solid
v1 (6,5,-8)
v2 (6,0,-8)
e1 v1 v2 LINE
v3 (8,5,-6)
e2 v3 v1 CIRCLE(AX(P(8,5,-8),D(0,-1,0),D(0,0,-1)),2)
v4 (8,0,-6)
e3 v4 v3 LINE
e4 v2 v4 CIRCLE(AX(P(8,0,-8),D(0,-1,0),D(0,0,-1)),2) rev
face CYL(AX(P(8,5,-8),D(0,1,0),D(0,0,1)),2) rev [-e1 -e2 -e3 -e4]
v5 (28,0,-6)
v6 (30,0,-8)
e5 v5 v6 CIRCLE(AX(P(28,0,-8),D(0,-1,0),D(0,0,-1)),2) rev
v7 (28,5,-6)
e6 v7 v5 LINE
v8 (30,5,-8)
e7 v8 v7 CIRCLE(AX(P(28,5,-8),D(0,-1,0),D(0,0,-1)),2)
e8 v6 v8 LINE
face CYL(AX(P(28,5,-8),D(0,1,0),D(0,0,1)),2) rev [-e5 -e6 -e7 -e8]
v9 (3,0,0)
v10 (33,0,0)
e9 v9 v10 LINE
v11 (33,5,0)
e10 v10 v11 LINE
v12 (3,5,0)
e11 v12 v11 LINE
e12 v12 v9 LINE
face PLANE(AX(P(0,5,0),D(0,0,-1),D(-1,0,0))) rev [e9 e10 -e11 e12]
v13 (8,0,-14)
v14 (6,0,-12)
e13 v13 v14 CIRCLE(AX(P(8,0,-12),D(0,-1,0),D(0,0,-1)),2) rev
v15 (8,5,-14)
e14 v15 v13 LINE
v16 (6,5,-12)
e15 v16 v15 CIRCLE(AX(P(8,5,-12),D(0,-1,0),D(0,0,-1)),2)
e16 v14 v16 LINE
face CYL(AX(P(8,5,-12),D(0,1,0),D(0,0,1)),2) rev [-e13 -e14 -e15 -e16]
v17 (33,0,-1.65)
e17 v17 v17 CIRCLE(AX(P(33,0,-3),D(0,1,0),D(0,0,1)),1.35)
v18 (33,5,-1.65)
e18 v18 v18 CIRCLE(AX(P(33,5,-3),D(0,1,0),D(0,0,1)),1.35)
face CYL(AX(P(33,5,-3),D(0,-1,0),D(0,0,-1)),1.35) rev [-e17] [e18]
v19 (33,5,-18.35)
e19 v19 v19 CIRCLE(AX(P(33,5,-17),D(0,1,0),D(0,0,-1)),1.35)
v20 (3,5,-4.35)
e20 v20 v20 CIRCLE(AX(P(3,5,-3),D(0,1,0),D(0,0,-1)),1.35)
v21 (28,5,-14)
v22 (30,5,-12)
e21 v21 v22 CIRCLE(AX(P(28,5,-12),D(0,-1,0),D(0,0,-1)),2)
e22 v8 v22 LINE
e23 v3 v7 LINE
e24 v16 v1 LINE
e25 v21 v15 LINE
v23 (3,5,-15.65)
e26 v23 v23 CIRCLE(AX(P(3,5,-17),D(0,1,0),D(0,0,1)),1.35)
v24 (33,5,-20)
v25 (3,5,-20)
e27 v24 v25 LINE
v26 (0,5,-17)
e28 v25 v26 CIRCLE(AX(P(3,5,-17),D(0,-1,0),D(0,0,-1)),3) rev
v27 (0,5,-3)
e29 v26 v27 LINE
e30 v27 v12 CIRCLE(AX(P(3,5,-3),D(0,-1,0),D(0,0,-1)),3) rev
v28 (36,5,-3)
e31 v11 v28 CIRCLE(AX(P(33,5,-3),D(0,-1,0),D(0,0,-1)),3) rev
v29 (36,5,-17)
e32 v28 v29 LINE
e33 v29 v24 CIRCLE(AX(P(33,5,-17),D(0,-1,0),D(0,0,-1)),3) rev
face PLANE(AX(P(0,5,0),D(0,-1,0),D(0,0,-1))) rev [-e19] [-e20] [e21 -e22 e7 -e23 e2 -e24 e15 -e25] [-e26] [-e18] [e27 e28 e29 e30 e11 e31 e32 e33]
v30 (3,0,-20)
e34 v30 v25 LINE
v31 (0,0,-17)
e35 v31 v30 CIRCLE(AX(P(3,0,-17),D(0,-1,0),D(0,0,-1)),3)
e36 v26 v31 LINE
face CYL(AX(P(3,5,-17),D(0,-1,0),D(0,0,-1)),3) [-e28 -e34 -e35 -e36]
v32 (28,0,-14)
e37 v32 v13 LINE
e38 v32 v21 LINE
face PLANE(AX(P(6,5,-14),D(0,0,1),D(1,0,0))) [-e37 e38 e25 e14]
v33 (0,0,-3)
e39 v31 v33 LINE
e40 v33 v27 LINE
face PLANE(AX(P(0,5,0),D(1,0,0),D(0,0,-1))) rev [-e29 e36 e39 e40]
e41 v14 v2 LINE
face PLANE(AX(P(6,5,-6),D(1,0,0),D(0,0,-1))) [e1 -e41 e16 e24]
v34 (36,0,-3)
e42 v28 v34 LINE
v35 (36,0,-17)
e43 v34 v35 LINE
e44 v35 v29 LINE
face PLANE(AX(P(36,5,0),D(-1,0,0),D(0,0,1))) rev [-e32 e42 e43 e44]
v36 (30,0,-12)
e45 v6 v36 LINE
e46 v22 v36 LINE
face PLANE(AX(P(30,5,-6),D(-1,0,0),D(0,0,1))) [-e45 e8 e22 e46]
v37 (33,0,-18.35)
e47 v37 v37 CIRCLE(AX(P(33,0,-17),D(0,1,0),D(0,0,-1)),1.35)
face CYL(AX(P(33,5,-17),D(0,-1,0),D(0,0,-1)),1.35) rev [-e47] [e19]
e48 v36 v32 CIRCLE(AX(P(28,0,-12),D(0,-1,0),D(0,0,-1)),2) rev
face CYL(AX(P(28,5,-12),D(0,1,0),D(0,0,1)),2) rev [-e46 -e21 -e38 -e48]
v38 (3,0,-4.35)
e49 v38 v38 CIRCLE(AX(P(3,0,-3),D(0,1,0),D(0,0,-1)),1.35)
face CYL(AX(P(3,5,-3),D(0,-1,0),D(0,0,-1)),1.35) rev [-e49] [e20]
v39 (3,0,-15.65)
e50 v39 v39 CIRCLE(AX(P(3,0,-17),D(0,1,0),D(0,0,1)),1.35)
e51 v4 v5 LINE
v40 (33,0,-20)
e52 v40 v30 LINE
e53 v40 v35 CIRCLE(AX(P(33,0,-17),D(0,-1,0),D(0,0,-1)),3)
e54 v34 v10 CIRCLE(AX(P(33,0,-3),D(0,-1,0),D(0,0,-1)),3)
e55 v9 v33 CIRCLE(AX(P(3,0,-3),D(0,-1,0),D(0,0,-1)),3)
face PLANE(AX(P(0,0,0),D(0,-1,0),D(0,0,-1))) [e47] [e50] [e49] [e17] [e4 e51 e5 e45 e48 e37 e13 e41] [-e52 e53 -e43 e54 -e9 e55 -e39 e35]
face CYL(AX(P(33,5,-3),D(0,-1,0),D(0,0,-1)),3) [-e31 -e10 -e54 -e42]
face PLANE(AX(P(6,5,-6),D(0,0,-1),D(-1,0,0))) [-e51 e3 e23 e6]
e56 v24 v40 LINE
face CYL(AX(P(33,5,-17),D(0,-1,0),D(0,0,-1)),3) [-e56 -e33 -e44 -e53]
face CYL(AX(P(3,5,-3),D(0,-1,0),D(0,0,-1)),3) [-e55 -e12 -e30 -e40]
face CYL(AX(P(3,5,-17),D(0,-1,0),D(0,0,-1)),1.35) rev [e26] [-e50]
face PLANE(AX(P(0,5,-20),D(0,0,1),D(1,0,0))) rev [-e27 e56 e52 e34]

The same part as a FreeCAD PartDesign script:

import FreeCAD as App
import Part
import Sketcher
Q = App.Units.Quantity


def edges_at(feature, points):
    """Names of the edges that pass closest to the given points."""
    edges = feature.Shape.Edges
    near = lambda p: min(range(len(edges)), key=lambda i: edges[i].distToShape(Part.Vertex(*p))[0])
    return sorted({f"Edge{near(p) + 1}" for p in points})

doc = App.newDocument("Part")
params = doc.addObject("Spreadsheet::Sheet", "Params")
for row, (alias, value) in enumerate([
    ("sketch1_diameter", "2.7 mm"),
    ("sketch1_width", "36 mm"),
    ("sketch1_width2", "24 mm"),
    ("sketch1_height", "20 mm"),
    ("sketch1_height2", "8 mm"),
    ("pad1_length", "5 mm"),
    ("fillet_radius", "3 mm"),
    ("fillet2_radius", "2 mm"),
], start=1):
    params.set(f"A{row}", alias)
    params.set(f"B{row}", "=" + value)
    params.setAlias(f"B{row}", alias)

body = doc.addObject("PartDesign::Body", "Body")

sketch1 = body.newObject("Sketcher::SketchObject", "Sketch")
sketch1.AttachmentSupport = (doc.getObject("XZ_Plane"), [""])
sketch1.MapMode = "FlatFace"
sketch1.addGeometry(Part.LineSegment(App.Vector(0, -20, 0), App.Vector(0, 0, 0)), False)
sketch1.addGeometry(Part.LineSegment(App.Vector(0, 0, 0), App.Vector(36, 0, 0)), False)
sketch1.addGeometry(Part.LineSegment(App.Vector(36, 0, 0), App.Vector(36, -20, 0)), False)
sketch1.addGeometry(Part.LineSegment(App.Vector(36, -20, 0), App.Vector(0, -20, 0)), False)
sketch1.addGeometry(Part.Circle(App.Vector(3, -3, 0), App.Vector(0, 0, 1), 1.4), False)
sketch1.addGeometry(Part.Circle(App.Vector(33, -3, 0), App.Vector(0, 0, 1), 1.4), False)
sketch1.addGeometry(Part.Circle(App.Vector(3, -17, 0), App.Vector(0, 0, 1), 1.4), False)
sketch1.addGeometry(Part.LineSegment(App.Vector(30, -6, 0), App.Vector(6, -6, 0)), False)
sketch1.addGeometry(Part.LineSegment(App.Vector(6, -6, 0), App.Vector(6, -14, 0)), False)
sketch1.addGeometry(Part.LineSegment(App.Vector(6, -14, 0), App.Vector(30, -14, 0)), False)
sketch1.addGeometry(Part.LineSegment(App.Vector(30, -14, 0), App.Vector(30, -6, 0)), False)
sketch1.addGeometry(Part.Circle(App.Vector(33, -17, 0), App.Vector(0, 0, 1), 1.4), False)
sketch1.addConstraint(Sketcher.Constraint("Coincident", 0, 2, 1, 1))
sketch1.addConstraint(Sketcher.Constraint("Coincident", 1, 2, 2, 1))
sketch1.addConstraint(Sketcher.Constraint("Coincident", 2, 2, 3, 1))
sketch1.addConstraint(Sketcher.Constraint("Coincident", 3, 2, 0, 1))
sketch1.addConstraint(Sketcher.Constraint("Coincident", 7, 2, 8, 1))
sketch1.addConstraint(Sketcher.Constraint("Coincident", 8, 2, 9, 1))
sketch1.addConstraint(Sketcher.Constraint("Coincident", 9, 2, 10, 1))
sketch1.addConstraint(Sketcher.Constraint("Coincident", 10, 2, 7, 1))
sketch1.addConstraint(Sketcher.Constraint("Vertical", 0))
sketch1.addConstraint(Sketcher.Constraint("Horizontal", 1))
sketch1.addConstraint(Sketcher.Constraint("Vertical", 2))
sketch1.addConstraint(Sketcher.Constraint("Horizontal", 3))
sketch1.addConstraint(Sketcher.Constraint("Horizontal", 7))
sketch1.addConstraint(Sketcher.Constraint("Vertical", 8))
sketch1.addConstraint(Sketcher.Constraint("Horizontal", 9))
sketch1.addConstraint(Sketcher.Constraint("Vertical", 10))
sketch1.addConstraint(Sketcher.Constraint("Coincident", 0, 2, -1, 1))
sketch1.addConstraint(Sketcher.Constraint("Equal", 4, 5))
sketch1.addConstraint(Sketcher.Constraint("Equal", 5, 6))
sketch1.addConstraint(Sketcher.Constraint("Equal", 6, 11))
sketch1.addConstraint(Sketcher.Constraint("Horizontal", 4, 3, 5, 3))
sketch1.addConstraint(Sketcher.Constraint("Horizontal", 6, 3, 11, 3))
sketch1.addConstraint(Sketcher.Constraint("Vertical", 4, 3, 6, 3))
sketch1.addConstraint(Sketcher.Constraint("Vertical", 5, 3, 11, 3))
sketch1.addConstraint(Sketcher.Constraint("Diameter", 4, Q("2.7 mm")))
sketch1.addConstraint(Sketcher.Constraint("DistanceX", 1, 1, 1, 2, Q("36 mm")))
sketch1.addConstraint(Sketcher.Constraint("DistanceX", 7, 2, 7, 1, Q("24 mm")))
sketch1.addConstraint(Sketcher.Constraint("DistanceY", 0, 1, 0, 2, Q("20 mm")))
sketch1.addConstraint(Sketcher.Constraint("DistanceY", 8, 2, 8, 1, Q("8 mm")))
sketch1.addConstraint(Sketcher.Constraint("DistanceX", -1, 1, 4, 3, Q("3 mm")))
sketch1.addConstraint(Sketcher.Constraint("DistanceY", 4, 3, -1, 1, Q("3 mm")))
sketch1.addConstraint(Sketcher.Constraint("DistanceX", -1, 1, 5, 3, Q("33 mm")))
sketch1.addConstraint(Sketcher.Constraint("DistanceY", 6, 3, -1, 1, Q("17 mm")))
sketch1.addConstraint(Sketcher.Constraint("DistanceX", -1, 1, 7, 2, Q("6 mm")))
sketch1.addConstraint(Sketcher.Constraint("DistanceY", 7, 2, -1, 1, Q("6 mm")))
sketch1.setExpression("Constraints[24]", "Params.sketch1_diameter")
sketch1.setExpression("Constraints[25]", "Params.sketch1_width")
sketch1.setExpression("Constraints[26]", "Params.sketch1_width2")
sketch1.setExpression("Constraints[27]", "Params.sketch1_height")
sketch1.setExpression("Constraints[28]", "Params.sketch1_height2")
pad1 = body.newObject("PartDesign::Pad", "Pad")
pad1.Profile = sketch1
pad1.setExpression("Length", "Params.pad1_length")
pad1.Reversed = True
doc.recompute()

fillet = body.newObject("PartDesign::Fillet", "Fillet")
fillet.Base = (pad1, edges_at(pad1, [
    (0, 2.5, -20),
    (36, 2.5, -20),
    (36, 2.5, 0),
    (0, 2.5, 0),
]))
fillet.setExpression("Radius", "Params.fillet_radius")
doc.recompute()

fillet2 = body.newObject("PartDesign::Fillet", "Fillet001")
fillet2.Base = (fillet, edges_at(fillet, [
    (6, 2.5, -6),
    (30, 2.5, -6),
    (30, 2.5, -14),
    (6, 2.5, -14),
]))
fillet2.setExpression("Radius", "Params.fillet2_radius")

doc.recompute()
